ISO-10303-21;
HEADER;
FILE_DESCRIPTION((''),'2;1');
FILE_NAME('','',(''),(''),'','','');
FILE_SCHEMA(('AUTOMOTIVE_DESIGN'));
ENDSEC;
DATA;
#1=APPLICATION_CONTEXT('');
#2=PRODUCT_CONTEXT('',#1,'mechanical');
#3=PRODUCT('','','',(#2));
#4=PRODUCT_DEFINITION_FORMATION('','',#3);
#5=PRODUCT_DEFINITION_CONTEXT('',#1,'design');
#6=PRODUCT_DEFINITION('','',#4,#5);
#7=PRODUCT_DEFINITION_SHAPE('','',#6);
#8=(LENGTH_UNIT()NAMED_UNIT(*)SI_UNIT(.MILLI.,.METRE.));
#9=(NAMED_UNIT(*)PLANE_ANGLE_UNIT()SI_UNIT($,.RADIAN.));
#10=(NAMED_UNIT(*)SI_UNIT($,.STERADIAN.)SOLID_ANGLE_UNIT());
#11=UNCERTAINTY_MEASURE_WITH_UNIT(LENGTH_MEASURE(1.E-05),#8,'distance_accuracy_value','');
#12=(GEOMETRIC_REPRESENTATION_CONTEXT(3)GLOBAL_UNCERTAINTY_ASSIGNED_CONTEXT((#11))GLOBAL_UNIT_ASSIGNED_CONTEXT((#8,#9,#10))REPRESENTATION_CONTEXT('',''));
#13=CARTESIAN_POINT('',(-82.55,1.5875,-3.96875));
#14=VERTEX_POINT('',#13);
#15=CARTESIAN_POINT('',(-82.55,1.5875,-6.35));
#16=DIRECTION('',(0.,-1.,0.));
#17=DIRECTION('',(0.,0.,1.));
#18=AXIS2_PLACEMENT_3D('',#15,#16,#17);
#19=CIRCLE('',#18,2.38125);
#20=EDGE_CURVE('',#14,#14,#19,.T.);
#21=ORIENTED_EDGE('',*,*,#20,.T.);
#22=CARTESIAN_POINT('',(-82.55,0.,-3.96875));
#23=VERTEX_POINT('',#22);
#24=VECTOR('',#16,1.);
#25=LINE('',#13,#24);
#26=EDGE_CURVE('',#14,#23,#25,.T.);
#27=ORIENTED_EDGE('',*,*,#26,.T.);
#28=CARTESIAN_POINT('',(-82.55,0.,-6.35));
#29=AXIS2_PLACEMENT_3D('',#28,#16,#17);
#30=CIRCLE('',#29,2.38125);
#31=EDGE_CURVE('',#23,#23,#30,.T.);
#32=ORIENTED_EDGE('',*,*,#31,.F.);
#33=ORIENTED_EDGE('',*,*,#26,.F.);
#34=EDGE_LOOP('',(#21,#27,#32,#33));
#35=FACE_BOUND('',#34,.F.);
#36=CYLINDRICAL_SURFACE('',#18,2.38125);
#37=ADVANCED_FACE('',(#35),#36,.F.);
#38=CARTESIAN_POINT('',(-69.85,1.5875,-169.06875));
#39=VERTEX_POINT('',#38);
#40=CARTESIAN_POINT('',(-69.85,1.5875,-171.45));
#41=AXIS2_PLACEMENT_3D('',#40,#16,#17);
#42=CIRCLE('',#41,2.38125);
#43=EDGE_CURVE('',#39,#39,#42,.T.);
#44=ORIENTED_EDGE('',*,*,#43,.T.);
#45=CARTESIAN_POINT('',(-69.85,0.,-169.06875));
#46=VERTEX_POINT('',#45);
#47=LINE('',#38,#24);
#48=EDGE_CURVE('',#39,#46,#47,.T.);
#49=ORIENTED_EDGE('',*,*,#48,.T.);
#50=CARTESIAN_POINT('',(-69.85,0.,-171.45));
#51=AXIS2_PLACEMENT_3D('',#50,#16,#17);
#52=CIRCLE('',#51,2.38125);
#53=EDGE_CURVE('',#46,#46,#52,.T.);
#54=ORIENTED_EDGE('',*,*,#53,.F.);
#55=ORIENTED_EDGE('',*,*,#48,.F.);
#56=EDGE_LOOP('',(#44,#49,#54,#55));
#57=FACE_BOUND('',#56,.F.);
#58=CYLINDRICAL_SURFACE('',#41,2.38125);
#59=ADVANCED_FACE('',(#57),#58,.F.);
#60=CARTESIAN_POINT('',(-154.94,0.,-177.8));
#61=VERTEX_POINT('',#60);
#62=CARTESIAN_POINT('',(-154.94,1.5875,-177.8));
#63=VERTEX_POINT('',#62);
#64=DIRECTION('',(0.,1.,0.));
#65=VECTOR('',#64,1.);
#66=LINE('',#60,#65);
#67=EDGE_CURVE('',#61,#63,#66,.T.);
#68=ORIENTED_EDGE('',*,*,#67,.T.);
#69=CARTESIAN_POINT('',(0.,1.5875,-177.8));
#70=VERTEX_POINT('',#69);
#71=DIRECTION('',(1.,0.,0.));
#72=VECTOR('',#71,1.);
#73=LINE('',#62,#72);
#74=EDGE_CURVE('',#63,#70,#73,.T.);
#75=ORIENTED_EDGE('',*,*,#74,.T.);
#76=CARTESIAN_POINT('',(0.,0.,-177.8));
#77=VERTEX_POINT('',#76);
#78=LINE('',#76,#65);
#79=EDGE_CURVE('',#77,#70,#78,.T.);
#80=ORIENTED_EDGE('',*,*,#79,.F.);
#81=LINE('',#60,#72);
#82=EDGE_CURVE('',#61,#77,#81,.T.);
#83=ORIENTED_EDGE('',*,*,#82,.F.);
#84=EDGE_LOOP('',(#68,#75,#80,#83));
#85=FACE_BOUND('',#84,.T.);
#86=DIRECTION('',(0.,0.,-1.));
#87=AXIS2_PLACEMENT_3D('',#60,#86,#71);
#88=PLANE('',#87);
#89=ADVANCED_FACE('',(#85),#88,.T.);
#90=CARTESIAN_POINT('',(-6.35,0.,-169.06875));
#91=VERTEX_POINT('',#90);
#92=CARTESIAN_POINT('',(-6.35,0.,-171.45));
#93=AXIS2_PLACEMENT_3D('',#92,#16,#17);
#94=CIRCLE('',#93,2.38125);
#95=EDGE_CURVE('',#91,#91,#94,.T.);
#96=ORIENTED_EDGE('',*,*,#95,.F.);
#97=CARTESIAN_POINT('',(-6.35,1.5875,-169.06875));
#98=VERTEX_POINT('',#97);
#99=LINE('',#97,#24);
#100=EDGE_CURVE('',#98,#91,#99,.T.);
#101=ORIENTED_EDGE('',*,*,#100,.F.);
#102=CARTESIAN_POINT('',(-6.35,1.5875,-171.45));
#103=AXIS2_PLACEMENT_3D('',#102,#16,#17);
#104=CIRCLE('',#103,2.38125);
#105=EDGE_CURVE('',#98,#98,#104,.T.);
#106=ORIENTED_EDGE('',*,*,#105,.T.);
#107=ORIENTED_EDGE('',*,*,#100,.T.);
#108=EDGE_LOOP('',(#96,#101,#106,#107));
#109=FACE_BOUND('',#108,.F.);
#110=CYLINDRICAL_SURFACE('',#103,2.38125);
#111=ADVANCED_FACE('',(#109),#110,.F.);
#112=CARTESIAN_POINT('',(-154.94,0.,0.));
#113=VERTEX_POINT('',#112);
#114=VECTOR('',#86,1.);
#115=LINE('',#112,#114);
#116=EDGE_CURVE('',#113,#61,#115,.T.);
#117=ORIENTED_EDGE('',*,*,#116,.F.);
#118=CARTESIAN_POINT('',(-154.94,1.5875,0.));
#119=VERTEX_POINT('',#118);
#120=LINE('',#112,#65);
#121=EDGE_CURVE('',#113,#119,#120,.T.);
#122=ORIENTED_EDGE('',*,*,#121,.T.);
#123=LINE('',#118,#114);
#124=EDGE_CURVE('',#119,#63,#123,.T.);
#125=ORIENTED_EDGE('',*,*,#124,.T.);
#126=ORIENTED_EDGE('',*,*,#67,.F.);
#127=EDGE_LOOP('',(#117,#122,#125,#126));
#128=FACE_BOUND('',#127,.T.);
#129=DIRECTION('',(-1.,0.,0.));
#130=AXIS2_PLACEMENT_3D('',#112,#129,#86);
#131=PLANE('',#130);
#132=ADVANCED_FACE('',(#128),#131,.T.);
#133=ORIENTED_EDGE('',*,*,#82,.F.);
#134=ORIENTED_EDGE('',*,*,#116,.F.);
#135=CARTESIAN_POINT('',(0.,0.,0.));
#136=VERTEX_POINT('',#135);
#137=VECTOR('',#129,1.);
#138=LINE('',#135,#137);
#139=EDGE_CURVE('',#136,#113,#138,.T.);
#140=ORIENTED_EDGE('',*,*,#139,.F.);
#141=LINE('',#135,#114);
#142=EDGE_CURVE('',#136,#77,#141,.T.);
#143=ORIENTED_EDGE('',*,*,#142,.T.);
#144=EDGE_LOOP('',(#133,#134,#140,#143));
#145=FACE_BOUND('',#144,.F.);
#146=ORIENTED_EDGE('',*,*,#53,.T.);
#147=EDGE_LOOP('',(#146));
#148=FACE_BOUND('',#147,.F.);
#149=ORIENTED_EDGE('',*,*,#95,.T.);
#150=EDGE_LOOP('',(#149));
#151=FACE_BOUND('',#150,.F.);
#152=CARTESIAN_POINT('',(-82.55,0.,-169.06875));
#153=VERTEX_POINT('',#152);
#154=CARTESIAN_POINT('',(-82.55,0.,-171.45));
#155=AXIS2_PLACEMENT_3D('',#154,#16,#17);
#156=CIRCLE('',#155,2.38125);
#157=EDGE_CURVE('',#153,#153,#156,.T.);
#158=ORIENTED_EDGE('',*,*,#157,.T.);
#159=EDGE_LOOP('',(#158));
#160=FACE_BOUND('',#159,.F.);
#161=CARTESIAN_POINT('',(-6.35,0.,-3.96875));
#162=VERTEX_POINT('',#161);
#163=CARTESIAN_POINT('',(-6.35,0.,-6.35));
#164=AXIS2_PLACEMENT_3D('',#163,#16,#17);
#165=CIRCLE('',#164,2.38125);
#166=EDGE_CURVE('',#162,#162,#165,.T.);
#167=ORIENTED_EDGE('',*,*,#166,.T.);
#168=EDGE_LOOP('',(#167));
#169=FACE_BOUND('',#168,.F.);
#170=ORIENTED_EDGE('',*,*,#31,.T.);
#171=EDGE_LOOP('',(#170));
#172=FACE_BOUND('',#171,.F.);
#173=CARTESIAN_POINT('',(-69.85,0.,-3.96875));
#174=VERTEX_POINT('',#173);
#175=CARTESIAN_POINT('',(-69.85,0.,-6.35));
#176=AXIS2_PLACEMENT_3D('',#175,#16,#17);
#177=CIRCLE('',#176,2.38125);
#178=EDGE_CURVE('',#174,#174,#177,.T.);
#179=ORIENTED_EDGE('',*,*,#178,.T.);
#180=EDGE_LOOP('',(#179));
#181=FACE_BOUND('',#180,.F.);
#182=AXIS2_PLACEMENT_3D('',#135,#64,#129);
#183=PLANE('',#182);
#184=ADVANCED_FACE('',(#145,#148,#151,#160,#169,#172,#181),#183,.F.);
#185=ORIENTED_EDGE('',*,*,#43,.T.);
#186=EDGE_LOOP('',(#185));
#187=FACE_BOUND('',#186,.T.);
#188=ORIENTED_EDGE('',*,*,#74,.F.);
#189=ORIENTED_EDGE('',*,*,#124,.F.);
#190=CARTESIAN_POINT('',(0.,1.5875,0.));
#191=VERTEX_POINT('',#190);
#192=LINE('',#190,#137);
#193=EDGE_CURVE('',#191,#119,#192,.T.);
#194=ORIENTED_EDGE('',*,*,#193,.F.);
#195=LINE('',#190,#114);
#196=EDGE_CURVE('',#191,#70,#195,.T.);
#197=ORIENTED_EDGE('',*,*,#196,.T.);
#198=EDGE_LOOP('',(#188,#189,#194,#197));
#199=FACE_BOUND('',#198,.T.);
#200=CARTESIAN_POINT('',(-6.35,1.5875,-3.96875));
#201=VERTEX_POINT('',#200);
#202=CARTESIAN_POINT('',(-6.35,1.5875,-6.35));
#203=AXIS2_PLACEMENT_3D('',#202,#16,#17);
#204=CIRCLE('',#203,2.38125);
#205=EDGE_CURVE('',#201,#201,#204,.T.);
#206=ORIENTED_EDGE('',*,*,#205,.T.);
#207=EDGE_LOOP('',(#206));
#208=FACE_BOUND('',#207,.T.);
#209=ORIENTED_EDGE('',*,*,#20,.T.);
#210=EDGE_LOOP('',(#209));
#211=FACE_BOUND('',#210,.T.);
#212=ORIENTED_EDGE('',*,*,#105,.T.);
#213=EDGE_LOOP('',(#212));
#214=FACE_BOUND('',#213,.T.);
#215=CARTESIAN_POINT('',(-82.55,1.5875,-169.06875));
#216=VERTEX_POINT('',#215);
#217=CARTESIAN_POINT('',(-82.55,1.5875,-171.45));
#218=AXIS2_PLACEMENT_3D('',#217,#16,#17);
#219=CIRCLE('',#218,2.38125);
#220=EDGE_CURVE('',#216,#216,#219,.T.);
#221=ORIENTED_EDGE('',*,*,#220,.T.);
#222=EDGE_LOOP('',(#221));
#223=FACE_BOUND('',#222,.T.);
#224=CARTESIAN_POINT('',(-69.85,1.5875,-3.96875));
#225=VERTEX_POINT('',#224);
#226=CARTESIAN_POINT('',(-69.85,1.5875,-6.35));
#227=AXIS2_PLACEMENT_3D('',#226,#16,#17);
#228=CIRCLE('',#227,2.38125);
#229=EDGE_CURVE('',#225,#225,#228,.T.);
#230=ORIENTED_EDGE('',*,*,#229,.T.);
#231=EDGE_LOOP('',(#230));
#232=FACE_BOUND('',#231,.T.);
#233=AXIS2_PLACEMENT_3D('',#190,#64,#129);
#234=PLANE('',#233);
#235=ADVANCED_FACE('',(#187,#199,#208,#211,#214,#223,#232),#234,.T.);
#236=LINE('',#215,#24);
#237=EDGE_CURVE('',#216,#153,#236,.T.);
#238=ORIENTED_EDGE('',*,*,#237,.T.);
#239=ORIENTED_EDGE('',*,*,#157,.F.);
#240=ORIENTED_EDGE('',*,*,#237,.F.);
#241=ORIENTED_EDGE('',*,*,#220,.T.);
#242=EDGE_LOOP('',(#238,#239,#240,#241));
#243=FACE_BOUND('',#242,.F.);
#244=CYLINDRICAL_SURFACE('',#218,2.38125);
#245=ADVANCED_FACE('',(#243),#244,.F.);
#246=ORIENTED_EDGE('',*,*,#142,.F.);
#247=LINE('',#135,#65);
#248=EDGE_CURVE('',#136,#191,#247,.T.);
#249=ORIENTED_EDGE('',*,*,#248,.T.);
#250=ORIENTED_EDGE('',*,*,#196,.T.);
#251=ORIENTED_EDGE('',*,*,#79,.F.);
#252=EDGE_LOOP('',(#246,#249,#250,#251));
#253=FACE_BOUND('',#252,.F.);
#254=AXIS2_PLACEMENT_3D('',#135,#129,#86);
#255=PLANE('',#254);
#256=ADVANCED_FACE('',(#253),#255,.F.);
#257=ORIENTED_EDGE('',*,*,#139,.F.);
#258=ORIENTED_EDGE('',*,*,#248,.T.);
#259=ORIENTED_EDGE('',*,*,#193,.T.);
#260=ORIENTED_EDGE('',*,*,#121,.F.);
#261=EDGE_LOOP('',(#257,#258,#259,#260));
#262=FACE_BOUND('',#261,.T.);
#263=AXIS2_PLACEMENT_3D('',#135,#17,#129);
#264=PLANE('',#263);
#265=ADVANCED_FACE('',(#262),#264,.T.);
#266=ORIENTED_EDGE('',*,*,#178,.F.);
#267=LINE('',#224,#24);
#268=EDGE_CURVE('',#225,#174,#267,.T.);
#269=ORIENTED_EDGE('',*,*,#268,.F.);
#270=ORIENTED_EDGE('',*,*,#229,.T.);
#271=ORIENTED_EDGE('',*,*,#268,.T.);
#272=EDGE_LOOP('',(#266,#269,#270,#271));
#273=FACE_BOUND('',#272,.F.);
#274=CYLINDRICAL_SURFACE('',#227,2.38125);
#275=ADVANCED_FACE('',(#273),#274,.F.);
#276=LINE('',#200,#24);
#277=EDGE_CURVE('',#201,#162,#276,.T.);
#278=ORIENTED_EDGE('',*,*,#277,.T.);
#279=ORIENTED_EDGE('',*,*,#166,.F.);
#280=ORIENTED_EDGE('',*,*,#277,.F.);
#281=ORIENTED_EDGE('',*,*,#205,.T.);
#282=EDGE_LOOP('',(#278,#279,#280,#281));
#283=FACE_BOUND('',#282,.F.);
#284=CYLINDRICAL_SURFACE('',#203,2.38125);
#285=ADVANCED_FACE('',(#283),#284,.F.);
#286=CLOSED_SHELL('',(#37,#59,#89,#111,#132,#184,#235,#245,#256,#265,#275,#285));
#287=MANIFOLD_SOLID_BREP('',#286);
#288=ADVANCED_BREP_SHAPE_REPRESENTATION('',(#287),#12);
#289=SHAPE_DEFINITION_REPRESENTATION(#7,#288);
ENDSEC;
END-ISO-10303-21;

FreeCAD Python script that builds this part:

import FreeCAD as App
import Part
import Sketcher
from FreeCAD import Vector
Q = App.Units.Quantity


def add_polygon(sketch, points):
    """Adds a closed chain of lines whose ends are joined by coincident constraints."""
    first, n = sketch.GeometryCount, len(points)
    for a, b in zip(points, points[1:] + points[:1]):
        sketch.addGeometry(Part.LineSegment(App.Vector(*a, 0), App.Vector(*b, 0)), False)
    for i in range(n):
        sketch.addConstraint(Sketcher.Constraint("Coincident", first + i, 2, first + (i + 1) % n, 1))

doc = App.newDocument("Part")
body = doc.addObject("PartDesign::Body", "Body")

# Sketch on XZ plane
sketch1 = doc.addObject("Sketcher::SketchObject", "Sketch")
body.addObject(sketch1)
sketch1.AttachmentSupport = (doc.XZ_Plane, [""])
sketch1.MapMode = "FlatFace"
add_polygon(sketch1, [(-155, 0), (0, 0), (0, -178), (-155, -178)])  # lines 0-3
sketch1.addConstraint([
    Sketcher.Constraint("Horizontal", 0),
    Sketcher.Constraint("Vertical", 1),
    Sketcher.Constraint("Horizontal", 2),
    Sketcher.Constraint("Vertical", 3),
    Sketcher.Constraint("Coincident", 0, 2, -1, 1),
    Sketcher.Constraint("DistanceY", 1, 2, 1, 1, Q("7 in")),
    Sketcher.Constraint("DistanceX", 0, 1, 0, 2, Q("6.1 in")),
])
pad1 = doc.addObject("PartDesign::Pad", "Pad")
body.addObject(pad1)
pad1.Profile = sketch1
pad1.Length = Q("0.0625 in")
pad1.Reversed = True

# Sketch on XZ plane
sketch2 = doc.addObject("Sketcher::SketchObject", "Sketch001")
body.addObject(sketch2)
sketch2.AttachmentSupport = (doc.XZ_Plane, [""])
sketch2.MapMode = "FlatFace"
sketch2.AttachmentOffset = App.Placement(Vector(0, 0, -0.0625 * 25.4), App.Rotation())
sketch2.addGeometry([
    Part.Circle(Vector(-6.3, -6.3, 0), Vector(0, 0, 1), 2.4),  # 0
    Part.Circle(Vector(-6.3, -171.4, 0), Vector(0, 0, 1), 2.4),  # 1
    Part.Circle(Vector(-69.8, -171.4, 0), Vector(0, 0, 1), 2.4),  # 2
    Part.Circle(Vector(-82.5, -171.4, 0), Vector(0, 0, 1), 2.4),  # 3
    Part.Circle(Vector(-69.8, -6.3, 0), Vector(0, 0, 1), 2.4),  # 4
    Part.Circle(Vector(-82.5, -6.3, 0), Vector(0, 0, 1), 2.4),  # 5
], False)
sketch2.addConstraint([
    Sketcher.Constraint("Equal", 0, 1),
    Sketcher.Constraint("Equal", 1, 2),
    Sketcher.Constraint("Equal", 2, 3),
    Sketcher.Constraint("Equal", 3, 4),
    Sketcher.Constraint("Equal", 4, 5),
    Sketcher.Constraint("Horizontal", 1, 3, 2, 3),
    Sketcher.Constraint("Horizontal", 2, 3, 3, 3),
    Sketcher.Constraint("Horizontal", 0, 3, 4, 3),
    Sketcher.Constraint("Horizontal", 4, 3, 5, 3),
    Sketcher.Constraint("Vertical", 0, 3, 1, 3),
    Sketcher.Constraint("Vertical", 2, 3, 4, 3),
    Sketcher.Constraint("Vertical", 3, 3, 5, 3),
    Sketcher.Constraint("Diameter", 0, Q("0.1875 in")),
    Sketcher.Constraint("DistanceX", 3, 3, 1, 3, Q("3 in")),
    Sketcher.Constraint("DistanceY", 1, 3, 0, 3, Q("6.5 in")),
    Sketcher.Constraint("DistanceX", 2, 3, 1, 3, Q("2.5 in")),
    Sketcher.Constraint("DistanceX", 0, 3, -1, 1, Q("0.25 in")),
    Sketcher.Constraint("DistanceY", 0, 3, -1, 1, Q("0.25 in")),
])
doc.recompute()
hole = doc.addObject("PartDesign::Hole", "Hole")
body.addObject(hole)
hole.Profile = sketch2
hole.ThreadType = "None"
hole.Diameter = Q("0.1875 in")
hole.DepthType = "ThroughAll"
hole.Reversed = True

doc.recompute()
